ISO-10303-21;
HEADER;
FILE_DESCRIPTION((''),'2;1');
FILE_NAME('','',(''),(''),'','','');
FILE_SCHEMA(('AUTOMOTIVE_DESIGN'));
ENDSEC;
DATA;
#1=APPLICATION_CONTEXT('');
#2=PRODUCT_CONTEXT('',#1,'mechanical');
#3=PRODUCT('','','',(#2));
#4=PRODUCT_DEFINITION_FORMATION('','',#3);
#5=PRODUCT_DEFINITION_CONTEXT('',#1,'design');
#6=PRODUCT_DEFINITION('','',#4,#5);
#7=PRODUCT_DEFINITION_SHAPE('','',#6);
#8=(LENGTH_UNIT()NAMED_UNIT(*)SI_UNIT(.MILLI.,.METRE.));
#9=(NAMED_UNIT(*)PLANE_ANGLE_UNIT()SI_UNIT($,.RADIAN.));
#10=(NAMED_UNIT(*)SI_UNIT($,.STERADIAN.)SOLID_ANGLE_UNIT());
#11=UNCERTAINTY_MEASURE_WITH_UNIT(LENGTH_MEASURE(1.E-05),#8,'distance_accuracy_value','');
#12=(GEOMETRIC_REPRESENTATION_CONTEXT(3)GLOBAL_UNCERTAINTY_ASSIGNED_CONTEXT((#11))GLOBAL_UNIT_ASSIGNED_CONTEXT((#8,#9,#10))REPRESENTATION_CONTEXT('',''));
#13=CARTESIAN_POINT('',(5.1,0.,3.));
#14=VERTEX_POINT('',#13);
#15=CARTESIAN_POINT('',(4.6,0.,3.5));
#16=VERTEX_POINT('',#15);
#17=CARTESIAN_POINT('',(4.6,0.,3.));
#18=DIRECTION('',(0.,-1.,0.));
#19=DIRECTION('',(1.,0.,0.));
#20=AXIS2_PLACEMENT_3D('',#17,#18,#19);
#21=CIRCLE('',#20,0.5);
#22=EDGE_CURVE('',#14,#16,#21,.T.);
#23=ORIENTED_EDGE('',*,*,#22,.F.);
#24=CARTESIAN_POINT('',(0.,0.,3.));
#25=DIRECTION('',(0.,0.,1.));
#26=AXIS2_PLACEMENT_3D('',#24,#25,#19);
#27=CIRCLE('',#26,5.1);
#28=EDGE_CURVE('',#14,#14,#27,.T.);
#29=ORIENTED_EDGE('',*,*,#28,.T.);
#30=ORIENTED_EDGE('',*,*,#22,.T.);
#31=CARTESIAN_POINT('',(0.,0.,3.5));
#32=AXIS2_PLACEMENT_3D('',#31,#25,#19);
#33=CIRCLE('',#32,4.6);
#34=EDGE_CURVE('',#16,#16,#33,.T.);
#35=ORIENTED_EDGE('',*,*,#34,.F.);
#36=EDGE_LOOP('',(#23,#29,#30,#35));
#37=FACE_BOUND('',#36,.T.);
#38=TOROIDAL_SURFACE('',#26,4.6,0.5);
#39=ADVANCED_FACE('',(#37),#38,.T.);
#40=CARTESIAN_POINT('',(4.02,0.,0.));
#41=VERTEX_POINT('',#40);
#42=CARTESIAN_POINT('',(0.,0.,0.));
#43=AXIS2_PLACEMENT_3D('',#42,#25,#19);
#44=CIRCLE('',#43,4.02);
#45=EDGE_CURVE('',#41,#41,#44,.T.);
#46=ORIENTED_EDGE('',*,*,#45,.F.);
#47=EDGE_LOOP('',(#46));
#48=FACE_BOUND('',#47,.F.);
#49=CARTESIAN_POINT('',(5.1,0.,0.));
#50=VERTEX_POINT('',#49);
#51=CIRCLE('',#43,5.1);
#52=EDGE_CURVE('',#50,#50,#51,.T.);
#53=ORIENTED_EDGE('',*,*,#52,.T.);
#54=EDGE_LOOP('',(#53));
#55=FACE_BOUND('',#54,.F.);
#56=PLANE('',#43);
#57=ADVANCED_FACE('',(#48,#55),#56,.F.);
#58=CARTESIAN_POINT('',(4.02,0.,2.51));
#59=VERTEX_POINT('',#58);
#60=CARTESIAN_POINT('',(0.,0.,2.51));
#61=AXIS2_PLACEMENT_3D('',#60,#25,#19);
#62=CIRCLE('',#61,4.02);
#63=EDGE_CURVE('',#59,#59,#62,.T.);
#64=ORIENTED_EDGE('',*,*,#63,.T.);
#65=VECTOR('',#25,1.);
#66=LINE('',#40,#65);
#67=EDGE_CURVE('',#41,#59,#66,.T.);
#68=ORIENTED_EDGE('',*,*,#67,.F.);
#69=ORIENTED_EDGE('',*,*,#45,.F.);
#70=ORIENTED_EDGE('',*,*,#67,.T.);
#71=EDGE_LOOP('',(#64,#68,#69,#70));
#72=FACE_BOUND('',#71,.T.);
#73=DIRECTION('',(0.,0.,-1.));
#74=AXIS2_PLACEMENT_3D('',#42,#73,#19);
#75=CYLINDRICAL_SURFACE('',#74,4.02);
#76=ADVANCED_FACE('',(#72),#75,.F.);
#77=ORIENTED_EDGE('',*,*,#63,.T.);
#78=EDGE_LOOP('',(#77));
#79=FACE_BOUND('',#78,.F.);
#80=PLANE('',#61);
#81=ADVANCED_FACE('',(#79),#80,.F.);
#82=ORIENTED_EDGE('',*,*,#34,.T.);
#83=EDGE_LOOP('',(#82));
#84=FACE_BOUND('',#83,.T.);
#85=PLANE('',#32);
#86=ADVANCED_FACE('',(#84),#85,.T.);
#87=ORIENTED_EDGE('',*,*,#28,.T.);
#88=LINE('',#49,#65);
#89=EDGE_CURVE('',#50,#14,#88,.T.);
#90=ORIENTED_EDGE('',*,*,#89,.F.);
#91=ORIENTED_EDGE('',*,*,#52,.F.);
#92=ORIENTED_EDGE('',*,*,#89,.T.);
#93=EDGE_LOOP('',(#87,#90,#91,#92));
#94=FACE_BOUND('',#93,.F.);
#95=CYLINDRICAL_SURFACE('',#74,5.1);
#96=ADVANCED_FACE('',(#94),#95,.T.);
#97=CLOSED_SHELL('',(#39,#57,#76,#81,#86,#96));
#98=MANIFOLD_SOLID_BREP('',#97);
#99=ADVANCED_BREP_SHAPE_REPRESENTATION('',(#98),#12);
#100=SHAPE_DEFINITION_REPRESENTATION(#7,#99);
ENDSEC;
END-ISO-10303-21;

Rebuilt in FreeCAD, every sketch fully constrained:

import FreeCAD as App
import Part
import Sketcher


def edges_at(feature, points):
    """Names of the edges that pass closest to the given points."""
    edges = feature.Shape.Edges
    near = lambda p: min(range(len(edges)), key=lambda i: edges[i].distToShape(Part.Vertex(*p))[0])
    return sorted({f"Edge{near(p) + 1}" for p in points})

doc = App.newDocument("Part")
body = doc.addObject("PartDesign::Body", "Body")

sketch1 = body.newObject("Sketcher::SketchObject", "Sketch")
sketch1.AttachmentSupport = (doc.getObject("XY_Plane"), [""])
sketch1.MapMode = "FlatFace"
sketch1.addGeometry(Part.Circle(App.Vector(0, 0, 0), App.Vector(0, 0, 1), 4), False)
sketch1.addConstraint([
    Sketcher.Constraint("Coincident", 0, 3, -1, 1),
    Sketcher.Constraint("Diameter", 0, 8.04),
])
pad1 = body.newObject("PartDesign::Pad", "Pad")
pad1.Profile = sketch1
pad1.Length = 2.51
body2 = doc.addObject("PartDesign::Body", "Body001")

sketch2 = body2.newObject("Sketcher::SketchObject", "Sketch001")
sketch2.AttachmentSupport = (doc.getObject("XY_Plane001"), [""])
sketch2.MapMode = "FlatFace"
sketch2.addGeometry(Part.Circle(App.Vector(0, 0, 0), App.Vector(0, 0, 1), 5), False)
sketch2.addConstraint([
    Sketcher.Constraint("Coincident", 0, 3, -1, 1),
    Sketcher.Constraint("Diameter", 0, 10.2),
])
pad2 = body2.newObject("PartDesign::Pad", "Pad001")
pad2.Profile = sketch2
pad2.Length = 3.5
doc.recompute()

boolean = body2.newObject("PartDesign::Boolean", "Boolean")
boolean.Type = "Cut"
boolean.addObjects([body])
doc.recompute()

fillet = body2.newObject("PartDesign::Fillet", "Fillet")
fillet.Base = (boolean, edges_at(boolean, [(-5.1, 0, 3.5)]))
fillet.Radius = 0.5

doc.recompute()
